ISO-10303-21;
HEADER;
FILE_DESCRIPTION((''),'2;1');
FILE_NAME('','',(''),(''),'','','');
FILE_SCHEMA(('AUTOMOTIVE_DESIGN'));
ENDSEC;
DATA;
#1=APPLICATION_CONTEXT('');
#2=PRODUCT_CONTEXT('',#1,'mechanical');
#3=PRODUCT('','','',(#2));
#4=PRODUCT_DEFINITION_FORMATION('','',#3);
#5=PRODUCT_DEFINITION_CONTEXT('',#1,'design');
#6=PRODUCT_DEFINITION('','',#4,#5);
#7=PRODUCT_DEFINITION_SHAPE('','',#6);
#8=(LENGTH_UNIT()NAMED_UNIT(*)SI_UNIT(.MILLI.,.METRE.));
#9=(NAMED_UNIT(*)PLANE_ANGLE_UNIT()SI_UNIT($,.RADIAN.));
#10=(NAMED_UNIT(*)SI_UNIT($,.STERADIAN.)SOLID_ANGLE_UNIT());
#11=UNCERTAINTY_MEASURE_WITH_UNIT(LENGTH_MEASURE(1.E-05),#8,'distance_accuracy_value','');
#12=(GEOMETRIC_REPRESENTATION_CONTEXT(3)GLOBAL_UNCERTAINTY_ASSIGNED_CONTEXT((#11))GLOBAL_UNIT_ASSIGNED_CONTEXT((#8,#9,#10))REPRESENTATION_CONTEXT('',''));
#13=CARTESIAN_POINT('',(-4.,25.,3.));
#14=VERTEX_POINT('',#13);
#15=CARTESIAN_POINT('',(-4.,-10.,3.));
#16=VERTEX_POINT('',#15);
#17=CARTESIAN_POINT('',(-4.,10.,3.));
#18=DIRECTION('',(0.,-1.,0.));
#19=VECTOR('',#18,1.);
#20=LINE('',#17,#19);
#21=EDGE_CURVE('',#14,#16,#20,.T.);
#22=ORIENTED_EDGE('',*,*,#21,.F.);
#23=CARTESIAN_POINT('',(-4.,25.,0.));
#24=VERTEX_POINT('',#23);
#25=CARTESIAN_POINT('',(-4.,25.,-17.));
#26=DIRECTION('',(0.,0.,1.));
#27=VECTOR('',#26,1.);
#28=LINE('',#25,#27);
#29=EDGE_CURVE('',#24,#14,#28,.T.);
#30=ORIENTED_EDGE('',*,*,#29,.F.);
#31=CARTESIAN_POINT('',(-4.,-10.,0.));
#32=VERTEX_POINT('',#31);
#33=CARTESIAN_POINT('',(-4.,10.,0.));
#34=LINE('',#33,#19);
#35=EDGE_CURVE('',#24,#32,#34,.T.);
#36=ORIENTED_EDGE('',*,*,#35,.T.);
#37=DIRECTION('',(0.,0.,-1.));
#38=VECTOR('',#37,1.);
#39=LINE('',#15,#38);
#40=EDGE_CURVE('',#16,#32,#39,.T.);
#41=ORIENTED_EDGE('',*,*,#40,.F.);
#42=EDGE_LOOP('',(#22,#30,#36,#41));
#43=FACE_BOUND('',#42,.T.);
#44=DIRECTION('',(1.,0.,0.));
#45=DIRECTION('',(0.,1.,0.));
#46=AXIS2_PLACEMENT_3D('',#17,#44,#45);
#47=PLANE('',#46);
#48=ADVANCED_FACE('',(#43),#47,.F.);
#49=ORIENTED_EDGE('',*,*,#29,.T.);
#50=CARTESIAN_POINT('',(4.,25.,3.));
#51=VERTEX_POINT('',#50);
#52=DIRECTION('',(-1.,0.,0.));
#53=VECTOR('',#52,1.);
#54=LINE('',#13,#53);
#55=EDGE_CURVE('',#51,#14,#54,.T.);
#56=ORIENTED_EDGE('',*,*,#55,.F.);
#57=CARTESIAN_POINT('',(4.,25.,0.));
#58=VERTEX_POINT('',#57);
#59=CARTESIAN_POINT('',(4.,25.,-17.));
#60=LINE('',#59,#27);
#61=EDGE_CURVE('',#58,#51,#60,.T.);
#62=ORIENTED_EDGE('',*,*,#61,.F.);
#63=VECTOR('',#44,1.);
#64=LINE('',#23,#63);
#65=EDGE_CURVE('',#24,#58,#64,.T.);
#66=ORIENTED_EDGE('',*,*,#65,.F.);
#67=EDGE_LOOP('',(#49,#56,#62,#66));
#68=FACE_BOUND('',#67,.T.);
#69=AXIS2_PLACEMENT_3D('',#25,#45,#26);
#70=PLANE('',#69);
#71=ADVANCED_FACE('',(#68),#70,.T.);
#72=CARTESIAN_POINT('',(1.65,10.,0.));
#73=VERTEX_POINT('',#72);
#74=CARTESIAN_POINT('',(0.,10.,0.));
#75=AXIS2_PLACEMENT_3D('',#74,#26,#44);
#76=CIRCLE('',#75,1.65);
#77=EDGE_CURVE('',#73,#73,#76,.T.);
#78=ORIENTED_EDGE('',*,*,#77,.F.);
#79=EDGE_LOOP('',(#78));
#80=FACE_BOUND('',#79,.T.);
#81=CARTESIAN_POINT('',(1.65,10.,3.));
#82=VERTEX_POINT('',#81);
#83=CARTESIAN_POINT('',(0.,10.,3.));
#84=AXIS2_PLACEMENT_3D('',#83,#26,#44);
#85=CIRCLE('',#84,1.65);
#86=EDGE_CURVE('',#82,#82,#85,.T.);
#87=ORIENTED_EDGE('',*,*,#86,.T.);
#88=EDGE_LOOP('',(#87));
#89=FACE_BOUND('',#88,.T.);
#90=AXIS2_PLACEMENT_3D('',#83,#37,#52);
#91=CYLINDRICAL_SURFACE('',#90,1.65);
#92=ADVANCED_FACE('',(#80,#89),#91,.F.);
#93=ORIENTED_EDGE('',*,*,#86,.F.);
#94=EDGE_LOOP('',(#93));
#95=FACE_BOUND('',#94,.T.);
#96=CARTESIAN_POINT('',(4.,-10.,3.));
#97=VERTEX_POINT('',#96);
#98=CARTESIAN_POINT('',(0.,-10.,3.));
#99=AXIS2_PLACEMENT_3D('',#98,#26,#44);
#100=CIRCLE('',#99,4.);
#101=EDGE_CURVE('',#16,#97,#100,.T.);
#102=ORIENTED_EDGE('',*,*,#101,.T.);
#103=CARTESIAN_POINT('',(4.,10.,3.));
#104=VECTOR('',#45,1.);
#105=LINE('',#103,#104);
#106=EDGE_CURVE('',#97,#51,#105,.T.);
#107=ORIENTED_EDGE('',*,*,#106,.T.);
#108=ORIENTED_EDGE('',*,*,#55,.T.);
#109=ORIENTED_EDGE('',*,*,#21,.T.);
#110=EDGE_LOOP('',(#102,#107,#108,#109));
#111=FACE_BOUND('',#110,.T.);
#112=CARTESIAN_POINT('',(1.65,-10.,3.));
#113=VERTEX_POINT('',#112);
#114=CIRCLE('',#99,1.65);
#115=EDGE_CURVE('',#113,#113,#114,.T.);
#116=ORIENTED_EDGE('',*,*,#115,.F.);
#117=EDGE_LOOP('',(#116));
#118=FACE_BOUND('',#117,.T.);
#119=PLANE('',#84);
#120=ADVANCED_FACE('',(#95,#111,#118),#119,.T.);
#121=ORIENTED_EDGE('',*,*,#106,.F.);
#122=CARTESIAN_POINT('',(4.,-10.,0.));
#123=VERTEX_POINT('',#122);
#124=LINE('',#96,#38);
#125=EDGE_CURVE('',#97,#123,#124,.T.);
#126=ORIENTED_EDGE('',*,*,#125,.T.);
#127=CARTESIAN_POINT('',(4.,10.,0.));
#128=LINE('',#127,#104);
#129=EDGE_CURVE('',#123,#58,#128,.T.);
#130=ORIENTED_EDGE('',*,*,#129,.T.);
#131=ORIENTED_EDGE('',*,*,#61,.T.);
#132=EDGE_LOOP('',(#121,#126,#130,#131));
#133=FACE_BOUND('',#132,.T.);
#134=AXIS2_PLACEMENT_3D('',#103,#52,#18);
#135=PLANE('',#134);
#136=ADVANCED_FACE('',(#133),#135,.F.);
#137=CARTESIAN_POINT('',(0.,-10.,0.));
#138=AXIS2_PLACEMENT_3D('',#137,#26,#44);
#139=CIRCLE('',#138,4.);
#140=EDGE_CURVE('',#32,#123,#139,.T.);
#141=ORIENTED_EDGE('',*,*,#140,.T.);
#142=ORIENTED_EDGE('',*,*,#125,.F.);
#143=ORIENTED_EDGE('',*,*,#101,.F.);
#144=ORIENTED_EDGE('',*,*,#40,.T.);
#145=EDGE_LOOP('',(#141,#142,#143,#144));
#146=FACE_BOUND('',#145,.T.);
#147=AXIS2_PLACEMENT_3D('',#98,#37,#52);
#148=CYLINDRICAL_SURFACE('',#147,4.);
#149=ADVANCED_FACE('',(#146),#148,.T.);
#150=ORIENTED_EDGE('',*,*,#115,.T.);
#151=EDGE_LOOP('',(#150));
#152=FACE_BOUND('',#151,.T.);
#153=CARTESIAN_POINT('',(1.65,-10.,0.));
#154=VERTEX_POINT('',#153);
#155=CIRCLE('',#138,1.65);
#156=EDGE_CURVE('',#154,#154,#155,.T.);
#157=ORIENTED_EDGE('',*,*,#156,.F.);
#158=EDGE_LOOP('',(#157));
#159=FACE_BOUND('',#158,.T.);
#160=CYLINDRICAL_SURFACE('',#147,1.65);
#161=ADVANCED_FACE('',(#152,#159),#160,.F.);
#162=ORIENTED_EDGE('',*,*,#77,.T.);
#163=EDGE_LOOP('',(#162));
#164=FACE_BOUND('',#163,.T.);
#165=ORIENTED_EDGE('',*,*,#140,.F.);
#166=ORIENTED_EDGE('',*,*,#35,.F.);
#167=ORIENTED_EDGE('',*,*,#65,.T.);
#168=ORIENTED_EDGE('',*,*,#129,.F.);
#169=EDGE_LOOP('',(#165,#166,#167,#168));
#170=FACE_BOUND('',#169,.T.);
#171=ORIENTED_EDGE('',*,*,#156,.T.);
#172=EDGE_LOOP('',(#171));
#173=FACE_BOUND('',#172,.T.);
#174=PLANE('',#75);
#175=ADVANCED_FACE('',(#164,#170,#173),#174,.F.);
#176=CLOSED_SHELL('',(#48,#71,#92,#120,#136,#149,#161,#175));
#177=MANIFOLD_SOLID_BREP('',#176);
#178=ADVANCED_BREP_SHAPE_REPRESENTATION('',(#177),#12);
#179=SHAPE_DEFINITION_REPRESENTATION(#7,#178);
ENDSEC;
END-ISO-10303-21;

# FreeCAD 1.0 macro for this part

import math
import FreeCAD as App
import Part
import Sketcher
from FreeCAD import Vector

doc = App.newDocument("Part")
body = doc.addObject("PartDesign::Body", "Body")

# Sketch on XY plane
sketch1 = doc.addObject("Sketcher::SketchObject", "Sketch")
body.addObject(sketch1)
sketch1.AttachmentSupport = (doc.XY_Plane, [""])
sketch1.MapMode = "FlatFace"
sketch1.addGeometry([
    Part.LineSegment(Vector(4, -10, 0), Vector(4, 10, 0)),  # 0
    Part.ArcOfCircle(Part.Circle(Vector(0, 10, 0), Vector(0, 0, 1), 4), math.radians(0), math.radians(180)),  # 1
    Part.LineSegment(Vector(-4, 10, 0), Vector(-4, -10, 0)),  # 2
    Part.ArcOfCircle(Part.Circle(Vector(0, -10, 0), Vector(0, 0, 1), 4), math.radians(180), math.radians(360)),  # 3
    Part.Circle(Vector(0, -10, 0), Vector(0, 0, 1), 1.65),  # 4
    Part.Circle(Vector(0, 10, 0), Vector(0, 0, 1), 1.65),  # 5
], False)
sketch1.addConstraint([
    Sketcher.Constraint("Tangent", 0, 2, 1, 1),
    Sketcher.Constraint("Tangent", 1, 2, 2, 1),
    Sketcher.Constraint("Tangent", 2, 2, 3, 1),
    Sketcher.Constraint("Tangent", 3, 2, 0, 1),
    Sketcher.Constraint("Vertical", 0),
    Sketcher.Constraint("Vertical", 2),
    Sketcher.Constraint("Coincident", 4, 3, 3, 3),
    Sketcher.Constraint("Coincident", 5, 3, 1, 3),
    Sketcher.Constraint("Equal", 4, 5),
    Sketcher.Constraint("Symmetric", 1, 3, 3, 3, -1, 1),
    Sketcher.Constraint("Radius", 1, 4.0),
    Sketcher.Constraint("Diameter", 4, 3.3),
    Sketcher.Constraint("DistanceY", 0, 1, 0, 2, 20.0),
])
pad1 = doc.addObject("PartDesign::Pad", "Pad")
body.addObject(pad1)
pad1.Profile = sketch1
pad1.Length = 3

# Sketch on XY plane
sketch2 = doc.addObject("Sketcher::SketchObject", "Sketch001")
body.addObject(sketch2)
sketch2.AttachmentSupport = (doc.XY_Plane, [""])
sketch2.MapMode = "FlatFace"
sketch2.addGeometry([
    Part.LineSegment(Vector(-4, 25, 0), Vector(-4, 10, 0)),
    Part.ArcOfCircle(Part.Circle(Vector(0, 10, 0), Vector(0, 0, 1), 4), math.radians(0), math.radians(180)),
    Part.LineSegment(Vector(4, 10, 0), Vector(4, 25, 0)),
    Part.LineSegment(Vector(4, 25, 0), Vector(-4, 25, 0)),
], False)
sketch2.addConstraint([
    Sketcher.Constraint("Tangent", 0, 2, 1, 2),
    Sketcher.Constraint("Tangent", 1, 1, 2, 1),
    Sketcher.Constraint("Coincident", 2, 2, 3, 1),
    Sketcher.Constraint("Coincident", 3, 2, 0, 1),
    Sketcher.Constraint("Vertical", 0),
    Sketcher.Constraint("Vertical", 2),
    Sketcher.Constraint("Horizontal", 3),
    Sketcher.Constraint("PointOnObject", 1, 3, -2),
    Sketcher.Constraint("Radius", 1, 4.0),
    Sketcher.Constraint("DistanceY", 0, 2, 0, 1, 15.0),
    Sketcher.Constraint("DistanceY", -1, 1, 1, 3, 10.0),
])
pad2 = doc.addObject("PartDesign::Pad", "Pad001")
body.addObject(pad2)
pad2.Profile = sketch2
pad2.Length = 3

doc.recompute()
